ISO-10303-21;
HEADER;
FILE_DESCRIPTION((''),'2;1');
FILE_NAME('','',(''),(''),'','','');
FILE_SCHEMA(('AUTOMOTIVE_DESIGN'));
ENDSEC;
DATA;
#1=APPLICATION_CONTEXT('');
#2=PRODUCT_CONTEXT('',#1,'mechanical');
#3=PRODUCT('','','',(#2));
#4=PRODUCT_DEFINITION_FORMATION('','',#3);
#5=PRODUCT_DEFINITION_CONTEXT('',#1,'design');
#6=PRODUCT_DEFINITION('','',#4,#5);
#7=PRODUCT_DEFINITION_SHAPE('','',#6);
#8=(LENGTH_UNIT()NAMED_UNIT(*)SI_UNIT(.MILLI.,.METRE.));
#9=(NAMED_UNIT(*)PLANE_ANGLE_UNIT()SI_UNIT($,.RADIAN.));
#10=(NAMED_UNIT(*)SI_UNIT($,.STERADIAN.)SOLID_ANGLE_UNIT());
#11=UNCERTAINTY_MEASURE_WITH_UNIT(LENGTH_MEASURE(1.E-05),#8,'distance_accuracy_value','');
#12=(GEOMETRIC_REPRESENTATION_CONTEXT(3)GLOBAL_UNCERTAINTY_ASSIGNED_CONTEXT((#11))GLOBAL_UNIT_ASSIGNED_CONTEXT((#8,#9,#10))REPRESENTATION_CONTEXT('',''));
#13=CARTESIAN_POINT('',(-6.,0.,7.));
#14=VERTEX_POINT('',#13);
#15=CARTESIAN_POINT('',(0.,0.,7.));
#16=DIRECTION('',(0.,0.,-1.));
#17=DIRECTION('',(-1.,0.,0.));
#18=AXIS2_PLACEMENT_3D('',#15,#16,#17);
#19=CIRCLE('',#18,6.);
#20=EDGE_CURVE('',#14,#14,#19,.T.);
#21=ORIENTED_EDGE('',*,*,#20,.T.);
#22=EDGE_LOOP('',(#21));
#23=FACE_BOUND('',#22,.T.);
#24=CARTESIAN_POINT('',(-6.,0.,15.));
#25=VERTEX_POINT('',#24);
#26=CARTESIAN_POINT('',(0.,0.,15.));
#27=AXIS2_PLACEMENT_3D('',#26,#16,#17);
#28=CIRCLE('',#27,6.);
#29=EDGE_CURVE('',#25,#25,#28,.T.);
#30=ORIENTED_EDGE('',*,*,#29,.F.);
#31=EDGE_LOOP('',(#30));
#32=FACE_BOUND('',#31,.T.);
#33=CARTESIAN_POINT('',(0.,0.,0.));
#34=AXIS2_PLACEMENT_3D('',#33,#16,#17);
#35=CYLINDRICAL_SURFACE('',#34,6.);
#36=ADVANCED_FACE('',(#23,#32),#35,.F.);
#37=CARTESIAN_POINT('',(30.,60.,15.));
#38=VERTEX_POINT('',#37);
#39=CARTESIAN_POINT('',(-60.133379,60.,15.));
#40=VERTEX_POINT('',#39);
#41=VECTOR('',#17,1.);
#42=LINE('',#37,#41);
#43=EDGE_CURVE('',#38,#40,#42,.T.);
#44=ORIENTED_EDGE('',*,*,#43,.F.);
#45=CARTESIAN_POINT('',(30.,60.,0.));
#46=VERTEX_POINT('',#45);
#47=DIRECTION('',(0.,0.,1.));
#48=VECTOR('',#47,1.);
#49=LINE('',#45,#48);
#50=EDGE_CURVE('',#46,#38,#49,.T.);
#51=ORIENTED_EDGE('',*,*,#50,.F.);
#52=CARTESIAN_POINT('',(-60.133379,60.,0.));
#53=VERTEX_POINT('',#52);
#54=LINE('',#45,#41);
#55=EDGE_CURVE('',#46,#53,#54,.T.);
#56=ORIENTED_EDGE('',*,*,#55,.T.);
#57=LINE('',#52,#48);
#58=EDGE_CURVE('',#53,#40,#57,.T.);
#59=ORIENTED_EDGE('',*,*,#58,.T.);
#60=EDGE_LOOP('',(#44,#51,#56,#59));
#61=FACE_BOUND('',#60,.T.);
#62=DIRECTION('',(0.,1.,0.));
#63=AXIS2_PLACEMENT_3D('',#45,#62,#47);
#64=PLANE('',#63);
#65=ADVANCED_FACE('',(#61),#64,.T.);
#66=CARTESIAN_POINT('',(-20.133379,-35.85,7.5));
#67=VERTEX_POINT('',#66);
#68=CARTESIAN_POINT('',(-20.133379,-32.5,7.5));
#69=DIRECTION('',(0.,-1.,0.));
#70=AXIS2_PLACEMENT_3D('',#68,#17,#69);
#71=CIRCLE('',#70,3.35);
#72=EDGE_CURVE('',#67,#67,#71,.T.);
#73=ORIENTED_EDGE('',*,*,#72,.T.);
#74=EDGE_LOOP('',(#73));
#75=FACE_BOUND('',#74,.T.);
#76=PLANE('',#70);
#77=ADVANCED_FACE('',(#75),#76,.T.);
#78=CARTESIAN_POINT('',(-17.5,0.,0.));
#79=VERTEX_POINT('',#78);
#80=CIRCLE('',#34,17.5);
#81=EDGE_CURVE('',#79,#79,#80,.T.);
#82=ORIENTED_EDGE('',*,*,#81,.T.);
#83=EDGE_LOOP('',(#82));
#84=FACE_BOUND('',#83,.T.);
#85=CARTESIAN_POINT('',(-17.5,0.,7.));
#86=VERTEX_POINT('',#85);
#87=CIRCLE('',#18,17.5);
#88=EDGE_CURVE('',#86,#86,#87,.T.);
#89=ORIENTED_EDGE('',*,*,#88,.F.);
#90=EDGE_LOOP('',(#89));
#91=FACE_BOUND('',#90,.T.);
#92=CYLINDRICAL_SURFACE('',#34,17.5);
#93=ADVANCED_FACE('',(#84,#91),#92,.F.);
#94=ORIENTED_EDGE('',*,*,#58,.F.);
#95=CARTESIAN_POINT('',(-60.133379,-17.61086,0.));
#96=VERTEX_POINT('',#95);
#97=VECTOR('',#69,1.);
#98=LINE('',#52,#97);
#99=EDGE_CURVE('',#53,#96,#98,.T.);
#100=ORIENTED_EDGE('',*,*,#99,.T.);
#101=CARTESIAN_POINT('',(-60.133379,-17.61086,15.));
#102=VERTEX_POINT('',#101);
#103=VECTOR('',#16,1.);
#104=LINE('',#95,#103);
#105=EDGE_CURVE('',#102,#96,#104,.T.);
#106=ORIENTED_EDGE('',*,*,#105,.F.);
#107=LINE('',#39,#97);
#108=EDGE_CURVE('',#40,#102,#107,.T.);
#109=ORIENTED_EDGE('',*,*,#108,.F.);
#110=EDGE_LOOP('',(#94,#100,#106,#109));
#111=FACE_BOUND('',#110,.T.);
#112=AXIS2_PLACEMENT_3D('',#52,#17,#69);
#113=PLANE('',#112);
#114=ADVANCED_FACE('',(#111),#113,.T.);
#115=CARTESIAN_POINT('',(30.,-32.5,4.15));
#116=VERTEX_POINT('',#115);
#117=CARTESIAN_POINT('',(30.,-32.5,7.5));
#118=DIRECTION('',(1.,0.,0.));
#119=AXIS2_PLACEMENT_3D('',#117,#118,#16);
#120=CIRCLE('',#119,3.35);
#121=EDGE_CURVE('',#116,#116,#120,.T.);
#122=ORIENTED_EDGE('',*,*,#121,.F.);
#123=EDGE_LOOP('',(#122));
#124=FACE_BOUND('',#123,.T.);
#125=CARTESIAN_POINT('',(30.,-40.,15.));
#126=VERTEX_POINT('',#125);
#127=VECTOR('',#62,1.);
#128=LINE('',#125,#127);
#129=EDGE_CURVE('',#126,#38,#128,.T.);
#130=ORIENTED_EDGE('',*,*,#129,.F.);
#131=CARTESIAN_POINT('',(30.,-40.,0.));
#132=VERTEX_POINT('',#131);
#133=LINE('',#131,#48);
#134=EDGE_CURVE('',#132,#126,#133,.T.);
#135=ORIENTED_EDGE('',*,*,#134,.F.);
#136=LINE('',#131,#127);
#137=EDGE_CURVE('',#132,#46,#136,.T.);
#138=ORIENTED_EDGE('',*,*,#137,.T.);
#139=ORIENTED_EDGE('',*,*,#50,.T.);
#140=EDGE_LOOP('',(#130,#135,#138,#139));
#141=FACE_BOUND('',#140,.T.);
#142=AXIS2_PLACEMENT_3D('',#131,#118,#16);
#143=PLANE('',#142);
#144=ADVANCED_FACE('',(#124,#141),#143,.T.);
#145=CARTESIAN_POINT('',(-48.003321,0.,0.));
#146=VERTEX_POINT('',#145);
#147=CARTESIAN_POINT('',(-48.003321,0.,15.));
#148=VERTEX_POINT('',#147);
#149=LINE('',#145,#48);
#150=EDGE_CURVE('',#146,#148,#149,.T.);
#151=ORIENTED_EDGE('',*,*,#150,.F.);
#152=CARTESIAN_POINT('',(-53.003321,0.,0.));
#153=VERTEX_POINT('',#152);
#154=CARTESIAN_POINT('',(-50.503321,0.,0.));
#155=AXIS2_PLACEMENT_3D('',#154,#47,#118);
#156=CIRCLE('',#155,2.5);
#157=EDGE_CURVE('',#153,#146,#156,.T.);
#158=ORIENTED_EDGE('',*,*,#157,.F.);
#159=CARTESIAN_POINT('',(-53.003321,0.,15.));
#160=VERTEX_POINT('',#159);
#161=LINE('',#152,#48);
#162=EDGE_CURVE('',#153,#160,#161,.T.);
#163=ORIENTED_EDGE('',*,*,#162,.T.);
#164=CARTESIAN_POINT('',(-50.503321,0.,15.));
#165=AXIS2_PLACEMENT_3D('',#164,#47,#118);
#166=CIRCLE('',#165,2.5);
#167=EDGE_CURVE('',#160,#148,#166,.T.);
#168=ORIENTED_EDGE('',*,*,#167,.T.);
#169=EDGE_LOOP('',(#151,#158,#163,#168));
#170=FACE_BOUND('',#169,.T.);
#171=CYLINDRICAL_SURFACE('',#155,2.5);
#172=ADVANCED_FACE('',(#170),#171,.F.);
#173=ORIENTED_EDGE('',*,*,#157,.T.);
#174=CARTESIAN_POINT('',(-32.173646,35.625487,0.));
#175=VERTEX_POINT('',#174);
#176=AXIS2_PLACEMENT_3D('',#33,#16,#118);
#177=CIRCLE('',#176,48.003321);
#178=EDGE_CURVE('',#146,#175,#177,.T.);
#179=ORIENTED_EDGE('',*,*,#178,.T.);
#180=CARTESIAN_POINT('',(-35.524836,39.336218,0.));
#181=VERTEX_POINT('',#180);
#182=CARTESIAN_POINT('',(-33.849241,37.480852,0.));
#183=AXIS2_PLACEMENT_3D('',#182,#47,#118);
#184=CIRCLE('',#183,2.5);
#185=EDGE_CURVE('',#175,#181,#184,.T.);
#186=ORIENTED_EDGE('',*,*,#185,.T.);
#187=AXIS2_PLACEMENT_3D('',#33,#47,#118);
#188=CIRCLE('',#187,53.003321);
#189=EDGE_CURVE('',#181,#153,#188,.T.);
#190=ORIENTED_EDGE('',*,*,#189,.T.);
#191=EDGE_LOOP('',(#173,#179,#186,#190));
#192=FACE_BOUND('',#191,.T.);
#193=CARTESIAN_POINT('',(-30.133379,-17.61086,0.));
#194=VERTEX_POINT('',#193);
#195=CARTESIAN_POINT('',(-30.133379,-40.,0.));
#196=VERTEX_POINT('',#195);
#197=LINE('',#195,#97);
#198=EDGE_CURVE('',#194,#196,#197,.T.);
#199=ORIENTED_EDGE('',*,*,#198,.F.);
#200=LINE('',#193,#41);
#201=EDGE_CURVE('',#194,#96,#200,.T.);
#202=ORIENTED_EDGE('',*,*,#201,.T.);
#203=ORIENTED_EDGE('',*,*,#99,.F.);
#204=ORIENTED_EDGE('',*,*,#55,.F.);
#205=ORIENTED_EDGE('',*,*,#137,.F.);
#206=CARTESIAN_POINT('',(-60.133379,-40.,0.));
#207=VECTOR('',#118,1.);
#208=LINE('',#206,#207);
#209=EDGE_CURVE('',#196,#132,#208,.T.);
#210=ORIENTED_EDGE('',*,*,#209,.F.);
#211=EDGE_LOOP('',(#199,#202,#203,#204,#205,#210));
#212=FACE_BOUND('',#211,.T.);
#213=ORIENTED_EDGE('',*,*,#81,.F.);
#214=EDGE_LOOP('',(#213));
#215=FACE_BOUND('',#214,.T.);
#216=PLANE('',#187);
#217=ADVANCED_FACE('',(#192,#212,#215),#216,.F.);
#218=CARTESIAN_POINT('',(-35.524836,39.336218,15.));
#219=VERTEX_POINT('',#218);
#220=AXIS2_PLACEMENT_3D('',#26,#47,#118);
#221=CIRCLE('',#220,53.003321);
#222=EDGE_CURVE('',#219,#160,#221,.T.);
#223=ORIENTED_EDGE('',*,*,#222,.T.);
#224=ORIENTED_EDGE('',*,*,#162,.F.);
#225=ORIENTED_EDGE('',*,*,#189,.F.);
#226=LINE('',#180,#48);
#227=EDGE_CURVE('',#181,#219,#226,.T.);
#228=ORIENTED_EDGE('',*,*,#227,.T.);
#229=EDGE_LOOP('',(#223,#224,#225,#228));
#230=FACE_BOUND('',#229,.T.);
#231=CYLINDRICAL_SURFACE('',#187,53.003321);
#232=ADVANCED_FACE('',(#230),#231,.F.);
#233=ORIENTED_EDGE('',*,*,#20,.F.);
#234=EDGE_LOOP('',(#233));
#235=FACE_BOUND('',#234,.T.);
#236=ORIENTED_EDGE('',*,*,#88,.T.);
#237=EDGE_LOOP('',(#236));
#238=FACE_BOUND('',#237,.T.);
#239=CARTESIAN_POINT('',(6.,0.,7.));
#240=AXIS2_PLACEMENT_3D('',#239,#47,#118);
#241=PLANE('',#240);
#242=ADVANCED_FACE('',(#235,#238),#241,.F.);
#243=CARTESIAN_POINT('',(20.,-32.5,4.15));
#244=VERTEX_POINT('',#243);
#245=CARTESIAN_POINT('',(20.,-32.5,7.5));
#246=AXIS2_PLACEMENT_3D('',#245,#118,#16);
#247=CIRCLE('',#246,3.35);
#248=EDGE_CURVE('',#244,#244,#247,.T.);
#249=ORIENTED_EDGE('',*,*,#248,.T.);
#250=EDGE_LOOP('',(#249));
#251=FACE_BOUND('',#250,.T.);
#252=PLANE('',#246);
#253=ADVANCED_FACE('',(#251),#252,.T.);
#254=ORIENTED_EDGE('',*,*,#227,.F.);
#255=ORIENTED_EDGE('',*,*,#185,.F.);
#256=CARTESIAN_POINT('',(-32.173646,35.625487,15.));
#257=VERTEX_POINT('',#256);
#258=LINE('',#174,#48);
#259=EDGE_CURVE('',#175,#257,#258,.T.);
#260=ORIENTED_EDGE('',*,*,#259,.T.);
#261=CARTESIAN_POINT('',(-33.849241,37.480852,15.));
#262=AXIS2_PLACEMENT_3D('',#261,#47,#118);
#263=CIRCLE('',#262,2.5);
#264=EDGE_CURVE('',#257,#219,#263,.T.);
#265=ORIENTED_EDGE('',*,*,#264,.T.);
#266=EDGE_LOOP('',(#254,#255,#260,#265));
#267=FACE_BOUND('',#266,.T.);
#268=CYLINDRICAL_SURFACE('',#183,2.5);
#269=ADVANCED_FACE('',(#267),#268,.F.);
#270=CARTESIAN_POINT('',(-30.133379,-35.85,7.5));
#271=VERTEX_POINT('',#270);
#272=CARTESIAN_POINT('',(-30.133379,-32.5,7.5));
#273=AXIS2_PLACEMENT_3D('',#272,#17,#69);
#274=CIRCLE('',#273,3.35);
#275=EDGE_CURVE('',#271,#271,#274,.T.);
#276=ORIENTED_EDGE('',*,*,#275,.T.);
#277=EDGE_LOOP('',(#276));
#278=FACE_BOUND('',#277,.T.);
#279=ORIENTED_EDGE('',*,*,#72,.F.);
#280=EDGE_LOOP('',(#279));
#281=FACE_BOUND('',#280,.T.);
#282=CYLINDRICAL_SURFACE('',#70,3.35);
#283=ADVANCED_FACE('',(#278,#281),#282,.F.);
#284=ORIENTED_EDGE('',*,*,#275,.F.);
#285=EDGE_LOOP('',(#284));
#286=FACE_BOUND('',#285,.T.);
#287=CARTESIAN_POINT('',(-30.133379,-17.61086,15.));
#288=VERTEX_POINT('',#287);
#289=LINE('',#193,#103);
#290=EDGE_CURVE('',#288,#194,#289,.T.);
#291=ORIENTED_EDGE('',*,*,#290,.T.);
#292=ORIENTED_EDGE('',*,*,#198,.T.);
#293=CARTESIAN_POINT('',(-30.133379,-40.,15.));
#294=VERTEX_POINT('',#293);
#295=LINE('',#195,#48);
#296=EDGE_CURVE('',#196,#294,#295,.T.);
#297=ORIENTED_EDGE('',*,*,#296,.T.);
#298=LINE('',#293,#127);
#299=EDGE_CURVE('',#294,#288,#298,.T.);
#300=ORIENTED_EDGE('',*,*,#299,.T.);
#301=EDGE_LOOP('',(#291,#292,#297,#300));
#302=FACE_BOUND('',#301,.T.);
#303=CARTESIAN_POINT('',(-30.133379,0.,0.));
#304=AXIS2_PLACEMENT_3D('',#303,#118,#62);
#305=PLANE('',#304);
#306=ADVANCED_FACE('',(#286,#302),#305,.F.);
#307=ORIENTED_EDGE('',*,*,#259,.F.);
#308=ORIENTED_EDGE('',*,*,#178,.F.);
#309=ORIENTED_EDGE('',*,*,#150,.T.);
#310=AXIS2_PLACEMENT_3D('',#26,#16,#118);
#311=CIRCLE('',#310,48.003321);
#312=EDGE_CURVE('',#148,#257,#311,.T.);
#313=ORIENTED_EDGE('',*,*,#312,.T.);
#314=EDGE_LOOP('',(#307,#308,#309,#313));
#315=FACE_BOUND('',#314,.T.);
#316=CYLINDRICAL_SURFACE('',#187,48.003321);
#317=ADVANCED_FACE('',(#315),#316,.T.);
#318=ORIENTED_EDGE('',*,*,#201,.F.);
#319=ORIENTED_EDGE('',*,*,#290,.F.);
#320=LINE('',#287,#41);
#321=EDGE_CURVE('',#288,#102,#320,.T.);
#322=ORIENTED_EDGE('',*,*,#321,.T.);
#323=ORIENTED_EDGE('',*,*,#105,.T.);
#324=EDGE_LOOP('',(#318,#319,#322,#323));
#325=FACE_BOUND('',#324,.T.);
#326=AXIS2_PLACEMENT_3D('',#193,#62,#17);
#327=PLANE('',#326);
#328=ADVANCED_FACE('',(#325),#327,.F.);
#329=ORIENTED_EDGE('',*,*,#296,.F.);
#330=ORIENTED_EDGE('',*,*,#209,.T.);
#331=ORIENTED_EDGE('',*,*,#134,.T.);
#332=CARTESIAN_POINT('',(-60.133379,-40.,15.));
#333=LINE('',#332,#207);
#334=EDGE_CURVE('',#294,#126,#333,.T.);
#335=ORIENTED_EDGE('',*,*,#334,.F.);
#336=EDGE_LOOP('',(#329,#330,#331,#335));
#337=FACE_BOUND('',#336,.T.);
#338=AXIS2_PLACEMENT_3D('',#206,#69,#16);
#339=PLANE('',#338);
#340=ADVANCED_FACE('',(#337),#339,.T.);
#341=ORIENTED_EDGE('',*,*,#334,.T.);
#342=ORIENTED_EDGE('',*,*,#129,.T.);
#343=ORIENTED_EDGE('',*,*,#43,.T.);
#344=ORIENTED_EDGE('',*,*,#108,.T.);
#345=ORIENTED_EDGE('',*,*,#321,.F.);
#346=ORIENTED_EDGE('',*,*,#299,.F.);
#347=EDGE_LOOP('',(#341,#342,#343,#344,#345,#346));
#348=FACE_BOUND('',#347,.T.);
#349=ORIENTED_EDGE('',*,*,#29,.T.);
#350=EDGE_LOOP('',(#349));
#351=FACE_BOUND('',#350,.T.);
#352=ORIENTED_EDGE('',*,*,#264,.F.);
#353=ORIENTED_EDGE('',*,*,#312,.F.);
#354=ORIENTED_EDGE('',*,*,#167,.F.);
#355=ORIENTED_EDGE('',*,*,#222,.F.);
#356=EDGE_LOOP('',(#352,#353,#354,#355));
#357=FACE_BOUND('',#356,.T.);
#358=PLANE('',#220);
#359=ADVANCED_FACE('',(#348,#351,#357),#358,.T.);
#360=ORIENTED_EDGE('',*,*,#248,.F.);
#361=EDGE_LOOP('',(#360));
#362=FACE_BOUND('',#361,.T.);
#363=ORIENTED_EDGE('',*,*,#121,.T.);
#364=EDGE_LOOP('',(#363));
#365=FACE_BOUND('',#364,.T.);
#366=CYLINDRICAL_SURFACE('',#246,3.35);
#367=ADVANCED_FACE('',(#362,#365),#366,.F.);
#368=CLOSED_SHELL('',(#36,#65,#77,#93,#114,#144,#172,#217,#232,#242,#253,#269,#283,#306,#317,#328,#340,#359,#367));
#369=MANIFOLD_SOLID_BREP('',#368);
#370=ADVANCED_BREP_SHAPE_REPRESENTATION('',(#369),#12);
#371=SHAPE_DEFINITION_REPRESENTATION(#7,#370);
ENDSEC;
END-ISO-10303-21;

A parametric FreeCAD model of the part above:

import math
import FreeCAD as App
import Part
import Sketcher
from FreeCAD import Vector

doc = App.newDocument("Part")
body = doc.addObject("PartDesign::Body", "Body")

# Sketch on XY plane
sketch1 = body.newObject("Sketcher::SketchObject", "Sketch")
sketch1.AttachmentSupport = (doc.getObject("XY_Plane"), [""])
sketch1.MapMode = "FlatFace"
sketch1.AttachmentOffset = App.Placement(Vector(0, 0, 15), App.Rotation())
sketch1.addGeometry([
    Part.LineSegment(Vector(-60, 60, 0), Vector(-60, -40, 0)),
    Part.LineSegment(Vector(-60, -40, 0), Vector(30, -40, 0)),
    Part.LineSegment(Vector(30, -40, 0), Vector(30, 60, 0)),
    Part.LineSegment(Vector(30, 60, 0), Vector(-60, 60, 0)),
], False)
sketch1.addConstraint([
    Sketcher.Constraint("Coincident", 0, 2, 1, 1),
    Sketcher.Constraint("Coincident", 1, 2, 2, 1),
    Sketcher.Constraint("Coincident", 2, 2, 3, 1),
    Sketcher.Constraint("Coincident", 3, 2, 0, 1),
    Sketcher.Constraint("Vertical", 0),
    Sketcher.Constraint("Horizontal", 1),
    Sketcher.Constraint("Vertical", 2),
    Sketcher.Constraint("Horizontal", 3),
    Sketcher.Constraint("DistanceY", 0, 2, 0, 1, 100.0),
    Sketcher.Constraint("DistanceY", 0, 2, -1, 1, 40.0),
    Sketcher.Constraint("DistanceX", -1, 1, 1, 2, 30.0),
    Sketcher.Constraint("DistanceX", 1, 1, 1, 2, 90.133379),
])
pad1 = body.newObject("PartDesign::Pad", "Pad")
pad1.Profile = sketch1
pad1.Length = 15
pad1.Reversed = True

# Sketch on XY plane
sketch2 = body.newObject("Sketcher::SketchObject", "Sketch001")
sketch2.AttachmentSupport = (doc.getObject("XY_Plane"), [""])
sketch2.MapMode = "FlatFace"
sketch2.addGeometry(Part.Circle(Vector(0, 0, 0), Vector(0, 0, 1), 6), False)
sketch2.addConstraint([
    Sketcher.Constraint("Coincident", 0, 3, -1, 1),
    Sketcher.Constraint("Diameter", 0, 12.0),
])
doc.recompute()
hole = body.newObject("PartDesign::Hole", "Hole")
hole.Profile = sketch2
hole.ThreadType = "None"
hole.Diameter = 12
hole.DepthType = "ThroughAll"
hole.HoleCutType = "Counterbore"
hole.HoleCutDiameter = 35
hole.HoleCutDepth = 7
hole.Reversed = True

# Sketch on YZ plane
sketch3 = body.newObject("Sketcher::SketchObject", "Sketch002")
sketch3.AttachmentSupport = (doc.getObject("YZ_Plane"), [""])
sketch3.MapMode = "FlatFace"
sketch3.AttachmentOffset = App.Placement(Vector(0, 0, -60.133379), App.Rotation())
sketch3.addGeometry([
    Part.LineSegment(Vector(-18, 0, 0), Vector(-40, 0, 0)),
    Part.LineSegment(Vector(-40, 0, 0), Vector(-40, 15, 0)),
    Part.LineSegment(Vector(-40, 15, 0), Vector(-18, 15, 0)),
    Part.LineSegment(Vector(-18, 15, 0), Vector(-18, 0, 0)),
], False)
sketch3.addConstraint([
    Sketcher.Constraint("Coincident", 0, 2, 1, 1),
    Sketcher.Constraint("Coincident", 1, 2, 2, 1),
    Sketcher.Constraint("Coincident", 2, 2, 3, 1),
    Sketcher.Constraint("Coincident", 3, 2, 0, 1),
    Sketcher.Constraint("Horizontal", 0),
    Sketcher.Constraint("Vertical", 1),
    Sketcher.Constraint("Horizontal", 2),
    Sketcher.Constraint("Vertical", 3),
    Sketcher.Constraint("PointOnObject", 0, 2, -1),
    Sketcher.Constraint("DistanceY", 1, 1, 1, 2, 15.0),
    Sketcher.Constraint("DistanceX", 0, 2, -1, 1, 40.0),
    Sketcher.Constraint("DistanceX", 0, 2, 0, 1, 22.38914),
])
pocket1 = body.newObject("PartDesign::Pocket", "Pocket")
pocket1.Profile = sketch3
pocket1.Length = 30
pocket1.Reversed = True

# Sketch on YZ plane
sketch4 = body.newObject("Sketcher::SketchObject", "Sketch003")
sketch4.AttachmentSupport = (doc.getObject("YZ_Plane"), [""])
sketch4.MapMode = "FlatFace"
sketch4.AttachmentOffset = App.Placement(Vector(0, 0, -30.133379), App.Rotation())
sketch4.addGeometry(Part.Circle(Vector(-32.5, 7.5, 0), Vector(0, 0, 1), 3.4), False)
sketch4.addConstraint([
    Sketcher.Constraint("Diameter", 0, 6.7),
    Sketcher.Constraint("DistanceX", 0, 3, -1, 1, 32.5),
    Sketcher.Constraint("DistanceY", -1, 1, 0, 3, 7.5),
])
pocket2 = body.newObject("PartDesign::Pocket", "Pocket001")
pocket2.Profile = sketch4
pocket2.Length = 10
pocket2.Reversed = True

# Sketch on YZ plane
sketch5 = body.newObject("Sketcher::SketchObject", "Sketch004")
sketch5.AttachmentSupport = (doc.getObject("YZ_Plane"), [""])
sketch5.MapMode = "FlatFace"
sketch5.AttachmentOffset = App.Placement(Vector(0, 0, 20), App.Rotation())
sketch5.addGeometry(Part.Circle(Vector(-32.5, 7.5, 0), Vector(0, 0, 1), 3.4), False)
sketch5.addConstraint([
    Sketcher.Constraint("Diameter", 0, 6.7),
    Sketcher.Constraint("DistanceX", 0, 3, -1, 1, 32.5),
    Sketcher.Constraint("DistanceY", -1, 1, 0, 3, 7.5),
])
pocket3 = body.newObject("PartDesign::Pocket", "Pocket002")
pocket3.Profile = sketch5
pocket3.Length = 10
pocket3.Reversed = True

# Sketch on XY plane
sketch6 = body.newObject("Sketcher::SketchObject", "Sketch005")
sketch6.AttachmentSupport = (doc.getObject("XY_Plane"), [""])
sketch6.MapMode = "FlatFace"
sketch6.AttachmentOffset = App.Placement(Vector(0, 0, 15), App.Rotation())
sketch6.addGeometry([
    Part.ArcOfCircle(Part.Circle(Vector(0, 0, 0), Vector(0, 0, 1), 53), math.radians(132), math.radians(180)),
    Part.ArcOfCircle(Part.Circle(Vector(-50.5, 0, 0), Vector(0, 0, 1), 2.5), math.radians(180), math.radians(360)),
    Part.ArcOfCircle(Part.Circle(Vector(0, 0, 0), Vector(0, 0, 1), 48), math.radians(132), math.radians(180)),
    Part.ArcOfCircle(Part.Circle(Vector(-33.8, 37.5, 0), Vector(0, 0, 1), 2.5), math.radians(-48), math.radians(132)),
], False)
sketch6.addConstraint([
    Sketcher.Constraint("Tangent", 0, 2, 1, 1),
    Sketcher.Constraint("Tangent", 1, 2, 2, 2),
    Sketcher.Constraint("Tangent", 2, 1, 3, 1),
    Sketcher.Constraint("Tangent", 3, 2, 0, 1),
    Sketcher.Constraint("Coincident", 0, 3, -1, 1),
    Sketcher.Constraint("Coincident", 2, 3, -1, 1),
    Sketcher.Constraint("PointOnObject", 1, 3, -1),
    Sketcher.Constraint("Radius", 1, 2.5),
    Sketcher.Constraint("Radius", 0, 53.003321),
    Sketcher.Constraint("DistanceX", 3, 3, -1, 1, 33.849241),
])
pocket4 = body.newObject("PartDesign::Pocket", "Pocket003")
pocket4.Profile = sketch6
pocket4.Type = "ThroughAll"

doc.recompute()
